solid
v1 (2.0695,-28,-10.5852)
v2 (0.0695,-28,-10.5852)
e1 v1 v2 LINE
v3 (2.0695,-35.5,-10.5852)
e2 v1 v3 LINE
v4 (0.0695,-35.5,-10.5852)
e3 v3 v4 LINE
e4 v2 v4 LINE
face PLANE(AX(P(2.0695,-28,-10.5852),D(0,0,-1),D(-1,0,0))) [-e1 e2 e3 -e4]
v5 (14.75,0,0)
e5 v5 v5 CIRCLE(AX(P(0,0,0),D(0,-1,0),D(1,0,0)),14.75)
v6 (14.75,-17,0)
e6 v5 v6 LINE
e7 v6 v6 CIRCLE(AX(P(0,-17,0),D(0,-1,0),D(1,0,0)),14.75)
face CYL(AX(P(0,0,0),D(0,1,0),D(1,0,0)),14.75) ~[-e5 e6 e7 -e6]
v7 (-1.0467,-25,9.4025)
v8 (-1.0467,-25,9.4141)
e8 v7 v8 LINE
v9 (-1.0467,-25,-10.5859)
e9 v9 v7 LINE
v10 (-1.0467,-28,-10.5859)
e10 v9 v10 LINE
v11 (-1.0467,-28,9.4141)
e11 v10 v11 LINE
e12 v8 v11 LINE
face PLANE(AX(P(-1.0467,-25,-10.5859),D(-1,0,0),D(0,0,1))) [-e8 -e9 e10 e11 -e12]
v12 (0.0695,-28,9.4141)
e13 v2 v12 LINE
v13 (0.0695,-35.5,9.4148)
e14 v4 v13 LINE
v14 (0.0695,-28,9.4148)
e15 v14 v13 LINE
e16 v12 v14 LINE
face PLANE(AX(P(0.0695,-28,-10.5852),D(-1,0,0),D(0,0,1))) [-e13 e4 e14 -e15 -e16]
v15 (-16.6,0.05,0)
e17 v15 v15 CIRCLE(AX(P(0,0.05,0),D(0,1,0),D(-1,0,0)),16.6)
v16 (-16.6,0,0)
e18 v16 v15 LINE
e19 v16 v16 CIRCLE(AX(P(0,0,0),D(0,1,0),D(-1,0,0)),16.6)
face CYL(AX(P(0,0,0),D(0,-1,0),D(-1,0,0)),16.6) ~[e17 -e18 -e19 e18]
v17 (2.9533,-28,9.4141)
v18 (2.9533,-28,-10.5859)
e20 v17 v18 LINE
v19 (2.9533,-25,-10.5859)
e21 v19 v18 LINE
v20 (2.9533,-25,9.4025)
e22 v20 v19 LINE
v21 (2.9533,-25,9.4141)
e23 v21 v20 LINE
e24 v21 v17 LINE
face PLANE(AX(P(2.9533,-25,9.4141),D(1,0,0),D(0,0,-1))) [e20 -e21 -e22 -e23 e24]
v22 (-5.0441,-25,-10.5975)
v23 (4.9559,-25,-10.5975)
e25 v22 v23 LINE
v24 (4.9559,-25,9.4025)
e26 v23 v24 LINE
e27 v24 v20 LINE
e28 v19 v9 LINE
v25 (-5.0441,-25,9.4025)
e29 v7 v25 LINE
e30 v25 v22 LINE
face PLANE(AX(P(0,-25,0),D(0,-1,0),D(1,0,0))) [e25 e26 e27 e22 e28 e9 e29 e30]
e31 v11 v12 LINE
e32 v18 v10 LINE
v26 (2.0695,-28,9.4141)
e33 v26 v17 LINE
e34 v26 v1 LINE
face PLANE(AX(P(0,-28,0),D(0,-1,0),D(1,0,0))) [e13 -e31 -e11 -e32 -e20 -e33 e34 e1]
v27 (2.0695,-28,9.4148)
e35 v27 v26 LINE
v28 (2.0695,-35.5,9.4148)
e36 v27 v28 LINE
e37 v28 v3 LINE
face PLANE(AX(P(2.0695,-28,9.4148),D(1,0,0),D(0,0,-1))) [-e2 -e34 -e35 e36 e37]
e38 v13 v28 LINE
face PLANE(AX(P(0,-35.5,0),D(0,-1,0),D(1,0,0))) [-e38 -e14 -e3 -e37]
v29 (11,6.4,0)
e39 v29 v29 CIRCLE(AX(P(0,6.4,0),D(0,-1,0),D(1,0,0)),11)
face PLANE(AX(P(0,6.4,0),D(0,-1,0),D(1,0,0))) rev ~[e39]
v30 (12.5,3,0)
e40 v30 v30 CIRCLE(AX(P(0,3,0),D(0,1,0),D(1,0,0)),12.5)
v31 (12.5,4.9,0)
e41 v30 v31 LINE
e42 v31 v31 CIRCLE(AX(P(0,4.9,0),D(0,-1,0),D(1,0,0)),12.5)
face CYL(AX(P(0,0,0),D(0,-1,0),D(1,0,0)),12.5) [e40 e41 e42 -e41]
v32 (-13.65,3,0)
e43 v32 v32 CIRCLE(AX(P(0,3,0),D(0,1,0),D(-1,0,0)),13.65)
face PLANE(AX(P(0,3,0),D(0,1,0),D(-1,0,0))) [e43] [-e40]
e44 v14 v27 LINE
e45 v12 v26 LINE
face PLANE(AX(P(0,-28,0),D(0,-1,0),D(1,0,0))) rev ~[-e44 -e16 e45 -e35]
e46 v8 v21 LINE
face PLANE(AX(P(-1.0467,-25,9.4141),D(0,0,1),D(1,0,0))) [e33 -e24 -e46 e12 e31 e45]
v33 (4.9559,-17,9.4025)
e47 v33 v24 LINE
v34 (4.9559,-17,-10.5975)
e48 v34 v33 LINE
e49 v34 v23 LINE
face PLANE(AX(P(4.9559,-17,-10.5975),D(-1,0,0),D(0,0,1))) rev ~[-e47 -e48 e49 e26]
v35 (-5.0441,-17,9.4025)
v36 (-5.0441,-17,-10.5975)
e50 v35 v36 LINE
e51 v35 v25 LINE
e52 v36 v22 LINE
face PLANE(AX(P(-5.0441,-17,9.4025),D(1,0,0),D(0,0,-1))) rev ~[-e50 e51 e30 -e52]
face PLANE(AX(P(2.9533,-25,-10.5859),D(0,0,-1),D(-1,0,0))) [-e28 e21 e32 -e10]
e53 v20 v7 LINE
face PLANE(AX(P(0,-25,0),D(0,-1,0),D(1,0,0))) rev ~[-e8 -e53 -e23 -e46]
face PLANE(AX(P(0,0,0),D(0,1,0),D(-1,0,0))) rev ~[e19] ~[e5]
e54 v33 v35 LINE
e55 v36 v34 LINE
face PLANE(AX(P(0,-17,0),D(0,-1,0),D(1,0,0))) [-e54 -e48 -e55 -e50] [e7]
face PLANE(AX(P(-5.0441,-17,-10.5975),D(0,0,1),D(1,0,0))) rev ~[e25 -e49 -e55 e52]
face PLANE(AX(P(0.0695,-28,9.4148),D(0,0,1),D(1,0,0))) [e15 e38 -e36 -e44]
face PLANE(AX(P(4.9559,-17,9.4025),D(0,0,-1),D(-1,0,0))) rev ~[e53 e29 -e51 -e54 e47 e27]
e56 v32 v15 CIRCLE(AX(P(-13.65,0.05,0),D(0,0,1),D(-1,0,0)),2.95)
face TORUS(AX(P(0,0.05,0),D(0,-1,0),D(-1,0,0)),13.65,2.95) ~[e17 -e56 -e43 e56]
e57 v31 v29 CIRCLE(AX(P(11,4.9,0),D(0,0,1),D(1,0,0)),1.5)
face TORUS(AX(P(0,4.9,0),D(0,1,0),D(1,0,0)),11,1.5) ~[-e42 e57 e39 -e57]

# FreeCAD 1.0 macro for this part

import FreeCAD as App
import Part
import Sketcher

V = App.Vector
Q = App.Units.Quantity


def edges_at(feature, points):
    """Names of the edges that pass closest to the given points."""
    edges = feature.Shape.Edges
    near = lambda p: min(range(len(edges)), key=lambda i: edges[i].distToShape(Part.Vertex(*p))[0])
    return sorted({f"Edge{near(p) + 1}" for p in points})


def add_polygon(sketch, points):
    """Adds a closed chain of lines whose ends are joined by coincident constraints."""
    first, n = sketch.GeometryCount, len(points)
    for a, b in zip(points, points[1:] + points[:1]):
        sketch.addGeometry(Part.LineSegment(App.Vector(*a, 0), App.Vector(*b, 0)), False)
    for i in range(n):
        sketch.addConstraint(Sketcher.Constraint("Coincident", first + i, 2, first + (i + 1) % n, 1))

doc = App.newDocument("Part")
body = doc.addObject("PartDesign::Body", "Body")

sketch1 = body.newObject("Sketcher::SketchObject", "Sketch")
sketch1.AttachmentSupport = (doc.getObject("XZ_Plane"), [""])
sketch1.MapMode = "FlatFace"
sketch1.addGeometry(Part.Circle(V(0, 0, 0), V(0, 0, 1), 17), False)
sketch1.addGeometry(Part.Circle(V(0, 0, 0), V(0, 0, 1), 12), False)
sketch1.addConstraint(Sketcher.Constraint("Coincident", 0, 3, -1, 1))
sketch1.addConstraint(Sketcher.Constraint("Coincident", 1, 3, -1, 1))
sketch1.addConstraint(Sketcher.Constraint("Diameter", 1, Q("25 mm")))
sketch1.addConstraint(Sketcher.Constraint("Diameter", 0, Q("33.2 mm")))
pad1 = body.newObject("PartDesign::Pad", "Pad")
pad1.Profile = sketch1
pad1.Length = 3
pad1.Reversed = True

sketch2 = body.newObject("Sketcher::SketchObject", "Sketch001")
sketch2.AttachmentSupport = (doc.getObject("XZ_Plane"), [""])
sketch2.MapMode = "FlatFace"
sketch2.addGeometry(Part.Circle(V(0, 0, 0), V(0, 0, 1), 12), False)
sketch2.addConstraint(Sketcher.Constraint("Coincident", 0, 3, -1, 1))
sketch2.addConstraint(Sketcher.Constraint("Diameter", 0, Q("25 mm")))
pad2 = body.newObject("PartDesign::Pad", "Pad001")
pad2.Profile = sketch2
pad2.Length = 6.4
pad2.Reversed = True
doc.recompute()

fillet = body.newObject("PartDesign::Fillet", "Fillet")
fillet.Base = (pad2, edges_at(pad2, [(-12.5, 6.4, 0)]))
fillet.Radius = 1.5
doc.recompute()

fillet2 = body.newObject("PartDesign::Fillet", "Fillet001")
fillet2.Base = (fillet, edges_at(fillet, [(16.6, 3, 0)]))
fillet2.Radius = 2.95

sketch3 = body.newObject("Sketcher::SketchObject", "Sketch002")
sketch3.AttachmentSupport = (doc.getObject("XZ_Plane"), [""])
sketch3.MapMode = "FlatFace"
sketch3.addGeometry(Part.Circle(V(0, 0, 0), V(0, 0, 1), 15), False)
sketch3.addConstraint(Sketcher.Constraint("Coincident", 0, 3, -1, 1))
sketch3.addConstraint(Sketcher.Constraint("Diameter", 0, Q("29.5 mm")))
pad3 = body.newObject("PartDesign::Pad", "Pad002")
pad3.Profile = sketch3
pad3.Length = 17

sketch4 = body.newObject("Sketcher::SketchObject", "Sketch003")
sketch4.AttachmentSupport = (doc.getObject("XZ_Plane"), [""])
sketch4.MapMode = "FlatFace"
sketch4.AttachmentOffset = App.Placement(V(0, 0, 17), App.Rotation())
add_polygon(sketch4, [(5, -11), (5, 9), (-5, 9), (-5, -11)])
sketch4.addConstraint(Sketcher.Constraint("Vertical", 0))
sketch4.addConstraint(Sketcher.Constraint("Horizontal", 1))
sketch4.addConstraint(Sketcher.Constraint("Vertical", 2))
sketch4.addConstraint(Sketcher.Constraint("Horizontal", 3))
sketch4.addConstraint(Sketcher.Constraint("DistanceX", 1, 2, 1, 1, Q("10 mm")))
sketch4.addConstraint(Sketcher.Constraint("DistanceY", 0, 1, 0, 2, Q("20 mm")))
sketch4.addConstraint(Sketcher.Constraint("DistanceX", -1, 1, 0, 2, Q("4.956 mm")))
sketch4.addConstraint(Sketcher.Constraint("DistanceY", -1, 1, 0, 2, Q("9.4025 mm")))
pad4 = body.newObject("PartDesign::Pad", "Pad003")
pad4.Profile = sketch4
pad4.Length = 8

sketch5 = body.newObject("Sketcher::SketchObject", "Sketch004")
sketch5.AttachmentSupport = (doc.getObject("XZ_Plane"), [""])
sketch5.MapMode = "FlatFace"
sketch5.AttachmentOffset = App.Placement(V(0, 0, 25), App.Rotation())
add_polygon(sketch5, [(3, 9.4), (-1, 9.4), (-1, -10.6), (3, -10.6)])
sketch5.addConstraint(Sketcher.Constraint("Horizontal", 0))
sketch5.addConstraint(Sketcher.Constraint("Vertical", 1))
sketch5.addConstraint(Sketcher.Constraint("Horizontal", 2))
sketch5.addConstraint(Sketcher.Constraint("Vertical", 3))
sketch5.addConstraint(Sketcher.Constraint("DistanceX", 0, 2, 0, 1, Q("4 mm")))
sketch5.addConstraint(Sketcher.Constraint("DistanceY", 1, 2, 1, 1, Q("20 mm")))
sketch5.addConstraint(Sketcher.Constraint("DistanceY", -1, 1, 0, 2, Q("9.414 mm")))
sketch5.addConstraint(Sketcher.Constraint("DistanceX", 0, 2, -1, 1, Q("1.0467 mm")))
pad5 = body.newObject("PartDesign::Pad", "Pad004")
pad5.Profile = sketch5
pad5.Length = 3

sketch6 = body.newObject("Sketcher::SketchObject", "Sketch005")
sketch6.AttachmentSupport = (doc.getObject("XZ_Plane"), [""])
sketch6.MapMode = "FlatFace"
sketch6.AttachmentOffset = App.Placement(V(0, 0, 28), App.Rotation())
add_polygon(sketch6, [(2.1, 9.4), (0.1, 9.4), (0.1, -10.6), (2.1, -10.6)])
sketch6.addConstraint(Sketcher.Constraint("Horizontal", 0))
sketch6.addConstraint(Sketcher.Constraint("Vertical", 1))
sketch6.addConstraint(Sketcher.Constraint("Horizontal", 2))
sketch6.addConstraint(Sketcher.Constraint("Vertical", 3))
sketch6.addConstraint(Sketcher.Constraint("DistanceX", 0, 2, 0, 1, Q("2 mm")))
sketch6.addConstraint(Sketcher.Constraint("DistanceY", 1, 2, 1, 1, Q("20 mm")))
sketch6.addConstraint(Sketcher.Constraint("DistanceX", -1, 1, 0, 2, Q("0.0695 mm")))
sketch6.addConstraint(Sketcher.Constraint("DistanceY", -1, 1, 0, 2, Q("9.4148 mm")))
pad6 = body.newObject("PartDesign::Pad", "Pad005")
pad6.Profile = sketch6
pad6.Length = 7.5

doc.recompute()
